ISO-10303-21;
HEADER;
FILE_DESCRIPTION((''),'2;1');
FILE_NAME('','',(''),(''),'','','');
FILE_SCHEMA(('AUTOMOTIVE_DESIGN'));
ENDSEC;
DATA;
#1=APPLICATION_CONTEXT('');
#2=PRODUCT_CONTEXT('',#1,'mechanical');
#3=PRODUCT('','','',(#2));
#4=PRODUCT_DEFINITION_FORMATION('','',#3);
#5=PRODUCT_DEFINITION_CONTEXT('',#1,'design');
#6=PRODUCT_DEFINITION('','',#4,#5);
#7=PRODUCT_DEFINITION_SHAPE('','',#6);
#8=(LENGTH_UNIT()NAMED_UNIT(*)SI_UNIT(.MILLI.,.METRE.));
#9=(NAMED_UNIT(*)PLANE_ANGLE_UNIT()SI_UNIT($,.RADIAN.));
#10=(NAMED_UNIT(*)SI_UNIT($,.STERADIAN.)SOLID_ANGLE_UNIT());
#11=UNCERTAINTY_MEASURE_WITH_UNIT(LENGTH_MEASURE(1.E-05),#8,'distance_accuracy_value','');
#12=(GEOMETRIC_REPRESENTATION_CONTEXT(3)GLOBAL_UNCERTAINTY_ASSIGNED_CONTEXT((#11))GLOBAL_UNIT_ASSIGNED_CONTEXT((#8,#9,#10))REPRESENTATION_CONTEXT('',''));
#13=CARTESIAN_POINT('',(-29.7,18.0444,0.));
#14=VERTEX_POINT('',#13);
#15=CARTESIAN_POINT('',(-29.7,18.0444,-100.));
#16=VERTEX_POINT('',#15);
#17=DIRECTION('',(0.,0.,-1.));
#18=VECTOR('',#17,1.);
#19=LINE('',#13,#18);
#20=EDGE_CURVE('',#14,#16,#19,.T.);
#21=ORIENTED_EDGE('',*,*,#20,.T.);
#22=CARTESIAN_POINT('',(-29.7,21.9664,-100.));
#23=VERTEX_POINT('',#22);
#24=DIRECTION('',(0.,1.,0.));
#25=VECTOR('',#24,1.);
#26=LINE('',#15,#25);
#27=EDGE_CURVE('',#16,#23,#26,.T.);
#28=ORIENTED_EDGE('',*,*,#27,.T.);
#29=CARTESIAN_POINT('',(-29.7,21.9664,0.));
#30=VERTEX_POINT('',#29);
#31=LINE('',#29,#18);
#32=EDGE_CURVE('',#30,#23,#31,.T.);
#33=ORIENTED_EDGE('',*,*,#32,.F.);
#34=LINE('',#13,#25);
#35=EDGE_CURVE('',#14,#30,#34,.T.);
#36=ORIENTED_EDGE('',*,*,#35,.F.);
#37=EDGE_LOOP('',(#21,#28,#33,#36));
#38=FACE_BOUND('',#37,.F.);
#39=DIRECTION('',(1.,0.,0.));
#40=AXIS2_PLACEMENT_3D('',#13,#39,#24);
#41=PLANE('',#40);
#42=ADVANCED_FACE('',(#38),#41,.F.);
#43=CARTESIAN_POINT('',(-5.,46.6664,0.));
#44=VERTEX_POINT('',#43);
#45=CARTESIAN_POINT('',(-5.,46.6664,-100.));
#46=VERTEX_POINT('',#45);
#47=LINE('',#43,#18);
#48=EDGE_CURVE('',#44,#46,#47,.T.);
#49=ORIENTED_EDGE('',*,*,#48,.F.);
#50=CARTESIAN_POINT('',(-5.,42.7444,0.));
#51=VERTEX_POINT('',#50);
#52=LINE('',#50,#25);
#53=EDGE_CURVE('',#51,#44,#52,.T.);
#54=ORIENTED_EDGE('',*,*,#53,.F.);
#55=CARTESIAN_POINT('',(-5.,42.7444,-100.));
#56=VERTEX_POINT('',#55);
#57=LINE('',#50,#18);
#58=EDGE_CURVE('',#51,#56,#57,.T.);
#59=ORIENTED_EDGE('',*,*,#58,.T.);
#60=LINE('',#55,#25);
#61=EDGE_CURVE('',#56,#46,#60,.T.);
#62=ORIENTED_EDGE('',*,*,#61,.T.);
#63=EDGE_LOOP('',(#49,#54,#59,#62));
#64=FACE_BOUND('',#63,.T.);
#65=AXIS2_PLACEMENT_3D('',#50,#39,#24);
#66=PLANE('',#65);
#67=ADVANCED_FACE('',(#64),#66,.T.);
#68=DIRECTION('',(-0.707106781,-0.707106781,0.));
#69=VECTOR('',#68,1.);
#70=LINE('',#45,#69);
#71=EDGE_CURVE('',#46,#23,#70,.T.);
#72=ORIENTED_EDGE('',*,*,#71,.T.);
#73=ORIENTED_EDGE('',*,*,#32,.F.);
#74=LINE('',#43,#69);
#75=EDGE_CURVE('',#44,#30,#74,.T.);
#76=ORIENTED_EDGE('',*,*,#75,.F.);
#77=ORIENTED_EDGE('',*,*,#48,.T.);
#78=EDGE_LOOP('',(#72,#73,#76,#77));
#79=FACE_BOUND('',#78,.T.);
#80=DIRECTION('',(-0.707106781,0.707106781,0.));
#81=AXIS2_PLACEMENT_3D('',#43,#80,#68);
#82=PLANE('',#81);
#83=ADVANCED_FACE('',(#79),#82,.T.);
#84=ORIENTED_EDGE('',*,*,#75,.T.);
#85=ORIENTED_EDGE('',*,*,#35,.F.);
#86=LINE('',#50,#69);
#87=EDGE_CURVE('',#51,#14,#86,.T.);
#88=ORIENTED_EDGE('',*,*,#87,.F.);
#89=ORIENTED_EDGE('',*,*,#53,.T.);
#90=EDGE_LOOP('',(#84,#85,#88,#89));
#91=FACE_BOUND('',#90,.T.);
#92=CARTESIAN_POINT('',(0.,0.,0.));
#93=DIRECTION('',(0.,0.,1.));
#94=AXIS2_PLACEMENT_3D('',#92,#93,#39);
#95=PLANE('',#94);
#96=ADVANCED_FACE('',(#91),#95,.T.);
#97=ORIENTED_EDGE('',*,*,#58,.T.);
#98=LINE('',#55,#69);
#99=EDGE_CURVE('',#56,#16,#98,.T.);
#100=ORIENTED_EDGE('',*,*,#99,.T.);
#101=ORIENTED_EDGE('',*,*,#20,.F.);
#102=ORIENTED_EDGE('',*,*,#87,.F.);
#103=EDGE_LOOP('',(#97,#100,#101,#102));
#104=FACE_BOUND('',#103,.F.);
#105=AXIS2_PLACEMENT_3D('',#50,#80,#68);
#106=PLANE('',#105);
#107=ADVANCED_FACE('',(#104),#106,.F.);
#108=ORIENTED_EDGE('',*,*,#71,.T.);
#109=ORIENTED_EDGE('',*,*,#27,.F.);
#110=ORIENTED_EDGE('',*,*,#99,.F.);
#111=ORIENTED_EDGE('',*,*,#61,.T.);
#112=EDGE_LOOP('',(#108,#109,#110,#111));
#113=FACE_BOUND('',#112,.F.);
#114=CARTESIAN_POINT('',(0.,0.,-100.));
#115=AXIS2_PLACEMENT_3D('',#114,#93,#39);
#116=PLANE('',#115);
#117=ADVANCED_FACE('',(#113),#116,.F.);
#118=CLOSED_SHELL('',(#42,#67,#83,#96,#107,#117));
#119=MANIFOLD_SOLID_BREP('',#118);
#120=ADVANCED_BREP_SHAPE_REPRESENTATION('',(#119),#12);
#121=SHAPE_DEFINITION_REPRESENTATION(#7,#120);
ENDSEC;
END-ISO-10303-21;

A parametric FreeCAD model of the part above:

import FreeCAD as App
import Part
import Sketcher

V = App.Vector
Q = App.Units.Quantity

doc = App.newDocument("Part")
params = doc.addObject("Spreadsheet::Sheet", "Params")
for row, (alias, value) in enumerate([
    ("pad1_length", "3.9370079 in"),
], start=1):
    params.set(f"A{row}", alias)
    params.set(f"B{row}", "=" + value)
    params.setAlias(f"B{row}", alias)

body = doc.addObject("PartDesign::Body", "Body")

# Sketch on XY plane
sketch1 = body.newObject("Sketcher::SketchObject", "Sketch")
sketch1.AttachmentSupport = (doc.getObject("XY_Plane"), [""])
sketch1.MapMode = "FlatFace"
sketch1.addGeometry(Part.LineSegment(V(-5, 42.7444, 0), V(-5, 46.6664, 0)), False)
sketch1.addGeometry(Part.LineSegment(V(-5, 46.6664, 0), V(-29.7, 21.9664, 0)), False)
sketch1.addGeometry(Part.LineSegment(V(-29.7, 21.9664, 0), V(-29.7, 18.0444, 0)), False)
sketch1.addGeometry(Part.LineSegment(V(-29.7, 18.0444, 0), V(-5, 42.7444, 0)), False)
sketch1.addConstraint(Sketcher.Constraint("Coincident", 0, 2, 1, 1))
sketch1.addConstraint(Sketcher.Constraint("Coincident", 1, 2, 2, 1))
sketch1.addConstraint(Sketcher.Constraint("Coincident", 2, 2, 3, 1))
sketch1.addConstraint(Sketcher.Constraint("Coincident", 3, 2, 0, 1))
sketch1.addConstraint(Sketcher.Constraint("Vertical", 0))
sketch1.addConstraint(Sketcher.Constraint("Vertical", 2))
sketch1.addConstraint(Sketcher.Constraint("Parallel", 1, 3))
sketch1.addConstraint(Sketcher.Constraint("Angle", 1, Q("-135 deg")))
sketch1.addConstraint(Sketcher.Constraint("DistanceY", 0, 1, 0, 2, Q("0.1544 in")))
sketch1.addConstraint(Sketcher.Constraint("DistanceX", 1, 2, -1, 1, Q("1.1693 in")))
sketch1.addConstraint(Sketcher.Constraint("DistanceY", -1, 1, 2, 2, Q("0.7104 in")))
sketch1.addConstraint(Sketcher.Constraint("Distance", 1, 34.931))
pad1 = body.newObject("PartDesign::Pad", "Pad")
pad1.Profile = sketch1
pad1.setExpression("Length", "Params.pad1_length")
pad1.Reversed = True

doc.recompute()
